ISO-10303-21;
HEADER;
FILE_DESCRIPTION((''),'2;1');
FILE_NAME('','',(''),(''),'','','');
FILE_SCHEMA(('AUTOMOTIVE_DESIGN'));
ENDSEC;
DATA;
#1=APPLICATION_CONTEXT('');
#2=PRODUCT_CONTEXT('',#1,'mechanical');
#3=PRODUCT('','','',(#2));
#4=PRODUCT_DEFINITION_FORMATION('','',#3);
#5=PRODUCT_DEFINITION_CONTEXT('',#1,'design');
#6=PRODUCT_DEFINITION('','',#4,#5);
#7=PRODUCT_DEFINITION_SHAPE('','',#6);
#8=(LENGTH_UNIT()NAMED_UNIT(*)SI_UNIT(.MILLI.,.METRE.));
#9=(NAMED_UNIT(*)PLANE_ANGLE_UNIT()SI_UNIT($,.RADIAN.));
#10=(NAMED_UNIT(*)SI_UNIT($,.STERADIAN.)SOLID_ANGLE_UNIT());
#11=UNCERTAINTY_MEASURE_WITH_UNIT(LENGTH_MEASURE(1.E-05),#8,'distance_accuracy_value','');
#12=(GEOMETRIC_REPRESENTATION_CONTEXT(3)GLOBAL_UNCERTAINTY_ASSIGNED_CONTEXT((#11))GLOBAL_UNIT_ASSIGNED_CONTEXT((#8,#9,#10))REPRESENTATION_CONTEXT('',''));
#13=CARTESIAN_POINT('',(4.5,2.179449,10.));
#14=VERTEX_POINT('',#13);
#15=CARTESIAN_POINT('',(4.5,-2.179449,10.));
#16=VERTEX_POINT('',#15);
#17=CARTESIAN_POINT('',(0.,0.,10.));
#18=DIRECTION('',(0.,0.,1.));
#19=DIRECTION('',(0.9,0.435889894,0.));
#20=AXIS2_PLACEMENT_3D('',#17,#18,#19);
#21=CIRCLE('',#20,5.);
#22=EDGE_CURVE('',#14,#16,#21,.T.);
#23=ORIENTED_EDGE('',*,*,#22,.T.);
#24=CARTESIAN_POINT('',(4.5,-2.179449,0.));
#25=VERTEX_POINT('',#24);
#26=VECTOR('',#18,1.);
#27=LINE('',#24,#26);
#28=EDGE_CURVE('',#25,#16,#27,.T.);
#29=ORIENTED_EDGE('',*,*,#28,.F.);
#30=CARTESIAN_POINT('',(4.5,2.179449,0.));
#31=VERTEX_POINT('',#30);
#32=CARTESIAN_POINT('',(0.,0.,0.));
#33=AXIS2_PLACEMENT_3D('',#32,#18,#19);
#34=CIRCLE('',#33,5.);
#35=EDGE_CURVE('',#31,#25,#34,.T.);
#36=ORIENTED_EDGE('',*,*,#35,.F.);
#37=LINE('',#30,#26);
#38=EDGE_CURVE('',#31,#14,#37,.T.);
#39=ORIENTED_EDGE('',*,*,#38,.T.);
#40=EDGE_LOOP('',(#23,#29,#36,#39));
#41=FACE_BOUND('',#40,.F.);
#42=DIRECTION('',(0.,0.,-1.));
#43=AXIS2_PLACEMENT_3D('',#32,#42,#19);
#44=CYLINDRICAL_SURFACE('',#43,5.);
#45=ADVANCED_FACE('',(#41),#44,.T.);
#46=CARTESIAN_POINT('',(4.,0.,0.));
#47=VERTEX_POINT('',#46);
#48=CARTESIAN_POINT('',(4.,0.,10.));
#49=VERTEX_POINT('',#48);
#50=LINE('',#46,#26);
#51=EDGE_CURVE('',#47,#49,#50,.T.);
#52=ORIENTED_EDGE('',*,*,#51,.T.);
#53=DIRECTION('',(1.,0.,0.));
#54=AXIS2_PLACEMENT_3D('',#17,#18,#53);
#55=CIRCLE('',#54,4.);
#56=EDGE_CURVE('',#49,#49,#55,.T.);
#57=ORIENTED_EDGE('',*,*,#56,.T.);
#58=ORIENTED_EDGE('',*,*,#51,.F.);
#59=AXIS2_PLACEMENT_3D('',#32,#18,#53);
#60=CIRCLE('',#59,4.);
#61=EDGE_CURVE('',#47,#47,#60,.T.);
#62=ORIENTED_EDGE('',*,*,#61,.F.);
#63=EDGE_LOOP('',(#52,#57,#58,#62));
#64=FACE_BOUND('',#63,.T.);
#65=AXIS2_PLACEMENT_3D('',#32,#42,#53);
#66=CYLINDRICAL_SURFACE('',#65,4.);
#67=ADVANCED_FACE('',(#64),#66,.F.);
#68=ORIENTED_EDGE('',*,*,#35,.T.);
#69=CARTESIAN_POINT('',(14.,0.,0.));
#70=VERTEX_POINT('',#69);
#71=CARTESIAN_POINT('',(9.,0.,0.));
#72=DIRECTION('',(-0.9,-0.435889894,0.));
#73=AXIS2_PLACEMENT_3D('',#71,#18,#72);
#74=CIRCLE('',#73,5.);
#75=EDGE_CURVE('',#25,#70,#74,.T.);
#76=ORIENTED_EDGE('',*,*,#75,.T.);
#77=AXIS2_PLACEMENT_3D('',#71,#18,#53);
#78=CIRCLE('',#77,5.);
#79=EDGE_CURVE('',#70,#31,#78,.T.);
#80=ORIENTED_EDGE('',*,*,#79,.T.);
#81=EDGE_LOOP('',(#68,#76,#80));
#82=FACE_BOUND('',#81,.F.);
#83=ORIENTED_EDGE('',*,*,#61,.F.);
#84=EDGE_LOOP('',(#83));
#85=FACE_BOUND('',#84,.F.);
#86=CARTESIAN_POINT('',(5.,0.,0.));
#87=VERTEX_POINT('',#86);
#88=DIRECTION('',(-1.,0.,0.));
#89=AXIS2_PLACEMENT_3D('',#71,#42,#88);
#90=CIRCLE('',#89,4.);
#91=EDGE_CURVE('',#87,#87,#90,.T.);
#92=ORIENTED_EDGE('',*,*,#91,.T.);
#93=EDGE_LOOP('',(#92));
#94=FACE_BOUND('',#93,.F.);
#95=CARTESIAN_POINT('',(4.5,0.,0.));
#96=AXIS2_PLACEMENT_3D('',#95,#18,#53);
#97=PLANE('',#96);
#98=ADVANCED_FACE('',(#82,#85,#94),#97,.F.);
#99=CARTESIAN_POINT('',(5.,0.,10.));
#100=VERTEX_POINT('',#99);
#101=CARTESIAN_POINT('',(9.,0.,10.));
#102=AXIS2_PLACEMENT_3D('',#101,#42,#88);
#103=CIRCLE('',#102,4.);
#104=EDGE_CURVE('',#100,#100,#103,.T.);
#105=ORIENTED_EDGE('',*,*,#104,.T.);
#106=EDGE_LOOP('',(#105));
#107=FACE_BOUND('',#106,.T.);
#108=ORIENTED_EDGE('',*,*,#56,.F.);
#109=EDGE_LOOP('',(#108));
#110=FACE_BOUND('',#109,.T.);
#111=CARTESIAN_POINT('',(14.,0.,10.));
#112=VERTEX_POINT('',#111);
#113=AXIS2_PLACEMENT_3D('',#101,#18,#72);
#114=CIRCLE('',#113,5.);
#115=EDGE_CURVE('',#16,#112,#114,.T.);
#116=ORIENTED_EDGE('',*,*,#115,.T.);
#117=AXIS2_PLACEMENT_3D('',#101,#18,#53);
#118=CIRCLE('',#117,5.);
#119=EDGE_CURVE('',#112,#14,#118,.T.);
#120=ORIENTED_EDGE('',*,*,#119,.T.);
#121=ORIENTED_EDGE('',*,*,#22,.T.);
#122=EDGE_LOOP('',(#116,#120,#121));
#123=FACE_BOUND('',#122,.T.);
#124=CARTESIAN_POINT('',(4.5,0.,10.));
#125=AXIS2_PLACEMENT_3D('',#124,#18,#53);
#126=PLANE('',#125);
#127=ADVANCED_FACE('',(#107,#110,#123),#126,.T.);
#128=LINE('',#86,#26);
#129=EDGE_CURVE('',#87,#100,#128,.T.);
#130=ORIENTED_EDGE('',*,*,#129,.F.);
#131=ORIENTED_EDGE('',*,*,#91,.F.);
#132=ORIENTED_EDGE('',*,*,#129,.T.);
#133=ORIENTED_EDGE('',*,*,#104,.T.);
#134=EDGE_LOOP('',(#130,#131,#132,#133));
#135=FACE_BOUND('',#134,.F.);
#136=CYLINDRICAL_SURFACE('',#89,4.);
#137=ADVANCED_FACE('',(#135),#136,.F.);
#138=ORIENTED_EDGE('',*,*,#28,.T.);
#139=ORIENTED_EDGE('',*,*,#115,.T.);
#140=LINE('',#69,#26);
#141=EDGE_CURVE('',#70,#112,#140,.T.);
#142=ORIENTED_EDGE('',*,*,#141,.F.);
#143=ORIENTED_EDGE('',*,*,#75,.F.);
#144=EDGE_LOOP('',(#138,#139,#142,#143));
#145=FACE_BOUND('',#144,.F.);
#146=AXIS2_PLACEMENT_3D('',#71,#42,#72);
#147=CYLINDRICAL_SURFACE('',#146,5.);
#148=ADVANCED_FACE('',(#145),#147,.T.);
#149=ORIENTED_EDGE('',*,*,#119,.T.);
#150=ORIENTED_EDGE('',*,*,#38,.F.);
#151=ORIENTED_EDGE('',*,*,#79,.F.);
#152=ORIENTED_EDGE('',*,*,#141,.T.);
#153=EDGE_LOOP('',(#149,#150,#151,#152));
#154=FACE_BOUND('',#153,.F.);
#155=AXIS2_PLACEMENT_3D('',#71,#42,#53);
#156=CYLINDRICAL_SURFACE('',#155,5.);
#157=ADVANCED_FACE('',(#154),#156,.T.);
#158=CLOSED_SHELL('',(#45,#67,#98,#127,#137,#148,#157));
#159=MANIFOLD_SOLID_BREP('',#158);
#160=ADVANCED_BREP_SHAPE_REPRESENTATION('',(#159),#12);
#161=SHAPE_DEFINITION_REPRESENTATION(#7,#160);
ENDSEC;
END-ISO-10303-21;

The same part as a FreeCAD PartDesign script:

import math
import FreeCAD as App
import Part
import Sketcher

V = App.Vector
Q = App.Units.Quantity

doc = App.newDocument("Part")
params = doc.addObject("Spreadsheet::Sheet", "Params")
for row, (alias, value) in enumerate([
    ("sketch1_diameter", "8 mm"),
    ("sketch1_radius", "5 mm"),
    ("pad1_length", "10 mm"),
], start=1):
    params.set(f"A{row}", alias)
    params.set(f"B{row}", "=" + value)
    params.setAlias(f"B{row}", alias)

body = doc.addObject("PartDesign::Body", "Body")

# Sketch on XY plane
sketch1 = doc.addObject("Sketcher::SketchObject", "Sketch")
body.addObject(sketch1)
sketch1.AttachmentSupport = (doc.XY_Plane, [""])
sketch1.MapMode = "FlatFace"
sketch1.addGeometry(Part.ArcOfCircle(Part.Circle(V(9, 0, 0), V(0, 0, 1), 5), math.radians(-154), math.radians(0)), False)
sketch1.addGeometry(Part.ArcOfCircle(Part.Circle(V(9, 0, 0), V(0, 0, 1), 5), math.radians(0), math.radians(154)), False)
sketch1.addGeometry(Part.ArcOfCircle(Part.Circle(V(0, 0, 0), V(0, 0, 1), 5), math.radians(26), math.radians(334)), False)
sketch1.addGeometry(Part.Circle(V(0, 0, 0), V(0, 0, 1), 4), False)
sketch1.addGeometry(Part.Circle(V(9, 0, 0), V(0, 0, 1), 4), False)
sketch1.addConstraint(Sketcher.Constraint("Tangent", 0, 2, 1, 1))
sketch1.addConstraint(Sketcher.Constraint("Coincident", 1, 2, 2, 1))
sketch1.addConstraint(Sketcher.Constraint("Coincident", 2, 2, 0, 1))
sketch1.addConstraint(Sketcher.Constraint("Coincident", 2, 3, -1, 1))
sketch1.addConstraint(Sketcher.Constraint("Coincident", 3, 3, -1, 1))
sketch1.addConstraint(Sketcher.Constraint("Coincident", 4, 3, 0, 3))
sketch1.addConstraint(Sketcher.Constraint("Equal", 0, 1))
sketch1.addConstraint(Sketcher.Constraint("Equal", 1, 2))
sketch1.addConstraint(Sketcher.Constraint("Equal", 3, 4))
sketch1.addConstraint(Sketcher.Constraint("PointOnObject", 0, 3, -1))
sketch1.addConstraint(Sketcher.Constraint("PointOnObject", 0, 2, -1))
sketch1.addConstraint(Sketcher.Constraint("Diameter", 3, Q("8 mm")))
sketch1.addConstraint(Sketcher.Constraint("Radius", 0, Q("5 mm")))
sketch1.addConstraint(Sketcher.Constraint("DistanceX", -1, 1, 0, 3, Q("9 mm")))
sketch1.setExpression("Constraints[11]", "Params.sketch1_diameter")
sketch1.setExpression("Constraints[12]", "Params.sketch1_radius")
pad1 = doc.addObject("PartDesign::Pad", "Pad")
body.addObject(pad1)
pad1.Profile = sketch1
pad1.setExpression("Length", "Params.pad1_length")

doc.recompute()
